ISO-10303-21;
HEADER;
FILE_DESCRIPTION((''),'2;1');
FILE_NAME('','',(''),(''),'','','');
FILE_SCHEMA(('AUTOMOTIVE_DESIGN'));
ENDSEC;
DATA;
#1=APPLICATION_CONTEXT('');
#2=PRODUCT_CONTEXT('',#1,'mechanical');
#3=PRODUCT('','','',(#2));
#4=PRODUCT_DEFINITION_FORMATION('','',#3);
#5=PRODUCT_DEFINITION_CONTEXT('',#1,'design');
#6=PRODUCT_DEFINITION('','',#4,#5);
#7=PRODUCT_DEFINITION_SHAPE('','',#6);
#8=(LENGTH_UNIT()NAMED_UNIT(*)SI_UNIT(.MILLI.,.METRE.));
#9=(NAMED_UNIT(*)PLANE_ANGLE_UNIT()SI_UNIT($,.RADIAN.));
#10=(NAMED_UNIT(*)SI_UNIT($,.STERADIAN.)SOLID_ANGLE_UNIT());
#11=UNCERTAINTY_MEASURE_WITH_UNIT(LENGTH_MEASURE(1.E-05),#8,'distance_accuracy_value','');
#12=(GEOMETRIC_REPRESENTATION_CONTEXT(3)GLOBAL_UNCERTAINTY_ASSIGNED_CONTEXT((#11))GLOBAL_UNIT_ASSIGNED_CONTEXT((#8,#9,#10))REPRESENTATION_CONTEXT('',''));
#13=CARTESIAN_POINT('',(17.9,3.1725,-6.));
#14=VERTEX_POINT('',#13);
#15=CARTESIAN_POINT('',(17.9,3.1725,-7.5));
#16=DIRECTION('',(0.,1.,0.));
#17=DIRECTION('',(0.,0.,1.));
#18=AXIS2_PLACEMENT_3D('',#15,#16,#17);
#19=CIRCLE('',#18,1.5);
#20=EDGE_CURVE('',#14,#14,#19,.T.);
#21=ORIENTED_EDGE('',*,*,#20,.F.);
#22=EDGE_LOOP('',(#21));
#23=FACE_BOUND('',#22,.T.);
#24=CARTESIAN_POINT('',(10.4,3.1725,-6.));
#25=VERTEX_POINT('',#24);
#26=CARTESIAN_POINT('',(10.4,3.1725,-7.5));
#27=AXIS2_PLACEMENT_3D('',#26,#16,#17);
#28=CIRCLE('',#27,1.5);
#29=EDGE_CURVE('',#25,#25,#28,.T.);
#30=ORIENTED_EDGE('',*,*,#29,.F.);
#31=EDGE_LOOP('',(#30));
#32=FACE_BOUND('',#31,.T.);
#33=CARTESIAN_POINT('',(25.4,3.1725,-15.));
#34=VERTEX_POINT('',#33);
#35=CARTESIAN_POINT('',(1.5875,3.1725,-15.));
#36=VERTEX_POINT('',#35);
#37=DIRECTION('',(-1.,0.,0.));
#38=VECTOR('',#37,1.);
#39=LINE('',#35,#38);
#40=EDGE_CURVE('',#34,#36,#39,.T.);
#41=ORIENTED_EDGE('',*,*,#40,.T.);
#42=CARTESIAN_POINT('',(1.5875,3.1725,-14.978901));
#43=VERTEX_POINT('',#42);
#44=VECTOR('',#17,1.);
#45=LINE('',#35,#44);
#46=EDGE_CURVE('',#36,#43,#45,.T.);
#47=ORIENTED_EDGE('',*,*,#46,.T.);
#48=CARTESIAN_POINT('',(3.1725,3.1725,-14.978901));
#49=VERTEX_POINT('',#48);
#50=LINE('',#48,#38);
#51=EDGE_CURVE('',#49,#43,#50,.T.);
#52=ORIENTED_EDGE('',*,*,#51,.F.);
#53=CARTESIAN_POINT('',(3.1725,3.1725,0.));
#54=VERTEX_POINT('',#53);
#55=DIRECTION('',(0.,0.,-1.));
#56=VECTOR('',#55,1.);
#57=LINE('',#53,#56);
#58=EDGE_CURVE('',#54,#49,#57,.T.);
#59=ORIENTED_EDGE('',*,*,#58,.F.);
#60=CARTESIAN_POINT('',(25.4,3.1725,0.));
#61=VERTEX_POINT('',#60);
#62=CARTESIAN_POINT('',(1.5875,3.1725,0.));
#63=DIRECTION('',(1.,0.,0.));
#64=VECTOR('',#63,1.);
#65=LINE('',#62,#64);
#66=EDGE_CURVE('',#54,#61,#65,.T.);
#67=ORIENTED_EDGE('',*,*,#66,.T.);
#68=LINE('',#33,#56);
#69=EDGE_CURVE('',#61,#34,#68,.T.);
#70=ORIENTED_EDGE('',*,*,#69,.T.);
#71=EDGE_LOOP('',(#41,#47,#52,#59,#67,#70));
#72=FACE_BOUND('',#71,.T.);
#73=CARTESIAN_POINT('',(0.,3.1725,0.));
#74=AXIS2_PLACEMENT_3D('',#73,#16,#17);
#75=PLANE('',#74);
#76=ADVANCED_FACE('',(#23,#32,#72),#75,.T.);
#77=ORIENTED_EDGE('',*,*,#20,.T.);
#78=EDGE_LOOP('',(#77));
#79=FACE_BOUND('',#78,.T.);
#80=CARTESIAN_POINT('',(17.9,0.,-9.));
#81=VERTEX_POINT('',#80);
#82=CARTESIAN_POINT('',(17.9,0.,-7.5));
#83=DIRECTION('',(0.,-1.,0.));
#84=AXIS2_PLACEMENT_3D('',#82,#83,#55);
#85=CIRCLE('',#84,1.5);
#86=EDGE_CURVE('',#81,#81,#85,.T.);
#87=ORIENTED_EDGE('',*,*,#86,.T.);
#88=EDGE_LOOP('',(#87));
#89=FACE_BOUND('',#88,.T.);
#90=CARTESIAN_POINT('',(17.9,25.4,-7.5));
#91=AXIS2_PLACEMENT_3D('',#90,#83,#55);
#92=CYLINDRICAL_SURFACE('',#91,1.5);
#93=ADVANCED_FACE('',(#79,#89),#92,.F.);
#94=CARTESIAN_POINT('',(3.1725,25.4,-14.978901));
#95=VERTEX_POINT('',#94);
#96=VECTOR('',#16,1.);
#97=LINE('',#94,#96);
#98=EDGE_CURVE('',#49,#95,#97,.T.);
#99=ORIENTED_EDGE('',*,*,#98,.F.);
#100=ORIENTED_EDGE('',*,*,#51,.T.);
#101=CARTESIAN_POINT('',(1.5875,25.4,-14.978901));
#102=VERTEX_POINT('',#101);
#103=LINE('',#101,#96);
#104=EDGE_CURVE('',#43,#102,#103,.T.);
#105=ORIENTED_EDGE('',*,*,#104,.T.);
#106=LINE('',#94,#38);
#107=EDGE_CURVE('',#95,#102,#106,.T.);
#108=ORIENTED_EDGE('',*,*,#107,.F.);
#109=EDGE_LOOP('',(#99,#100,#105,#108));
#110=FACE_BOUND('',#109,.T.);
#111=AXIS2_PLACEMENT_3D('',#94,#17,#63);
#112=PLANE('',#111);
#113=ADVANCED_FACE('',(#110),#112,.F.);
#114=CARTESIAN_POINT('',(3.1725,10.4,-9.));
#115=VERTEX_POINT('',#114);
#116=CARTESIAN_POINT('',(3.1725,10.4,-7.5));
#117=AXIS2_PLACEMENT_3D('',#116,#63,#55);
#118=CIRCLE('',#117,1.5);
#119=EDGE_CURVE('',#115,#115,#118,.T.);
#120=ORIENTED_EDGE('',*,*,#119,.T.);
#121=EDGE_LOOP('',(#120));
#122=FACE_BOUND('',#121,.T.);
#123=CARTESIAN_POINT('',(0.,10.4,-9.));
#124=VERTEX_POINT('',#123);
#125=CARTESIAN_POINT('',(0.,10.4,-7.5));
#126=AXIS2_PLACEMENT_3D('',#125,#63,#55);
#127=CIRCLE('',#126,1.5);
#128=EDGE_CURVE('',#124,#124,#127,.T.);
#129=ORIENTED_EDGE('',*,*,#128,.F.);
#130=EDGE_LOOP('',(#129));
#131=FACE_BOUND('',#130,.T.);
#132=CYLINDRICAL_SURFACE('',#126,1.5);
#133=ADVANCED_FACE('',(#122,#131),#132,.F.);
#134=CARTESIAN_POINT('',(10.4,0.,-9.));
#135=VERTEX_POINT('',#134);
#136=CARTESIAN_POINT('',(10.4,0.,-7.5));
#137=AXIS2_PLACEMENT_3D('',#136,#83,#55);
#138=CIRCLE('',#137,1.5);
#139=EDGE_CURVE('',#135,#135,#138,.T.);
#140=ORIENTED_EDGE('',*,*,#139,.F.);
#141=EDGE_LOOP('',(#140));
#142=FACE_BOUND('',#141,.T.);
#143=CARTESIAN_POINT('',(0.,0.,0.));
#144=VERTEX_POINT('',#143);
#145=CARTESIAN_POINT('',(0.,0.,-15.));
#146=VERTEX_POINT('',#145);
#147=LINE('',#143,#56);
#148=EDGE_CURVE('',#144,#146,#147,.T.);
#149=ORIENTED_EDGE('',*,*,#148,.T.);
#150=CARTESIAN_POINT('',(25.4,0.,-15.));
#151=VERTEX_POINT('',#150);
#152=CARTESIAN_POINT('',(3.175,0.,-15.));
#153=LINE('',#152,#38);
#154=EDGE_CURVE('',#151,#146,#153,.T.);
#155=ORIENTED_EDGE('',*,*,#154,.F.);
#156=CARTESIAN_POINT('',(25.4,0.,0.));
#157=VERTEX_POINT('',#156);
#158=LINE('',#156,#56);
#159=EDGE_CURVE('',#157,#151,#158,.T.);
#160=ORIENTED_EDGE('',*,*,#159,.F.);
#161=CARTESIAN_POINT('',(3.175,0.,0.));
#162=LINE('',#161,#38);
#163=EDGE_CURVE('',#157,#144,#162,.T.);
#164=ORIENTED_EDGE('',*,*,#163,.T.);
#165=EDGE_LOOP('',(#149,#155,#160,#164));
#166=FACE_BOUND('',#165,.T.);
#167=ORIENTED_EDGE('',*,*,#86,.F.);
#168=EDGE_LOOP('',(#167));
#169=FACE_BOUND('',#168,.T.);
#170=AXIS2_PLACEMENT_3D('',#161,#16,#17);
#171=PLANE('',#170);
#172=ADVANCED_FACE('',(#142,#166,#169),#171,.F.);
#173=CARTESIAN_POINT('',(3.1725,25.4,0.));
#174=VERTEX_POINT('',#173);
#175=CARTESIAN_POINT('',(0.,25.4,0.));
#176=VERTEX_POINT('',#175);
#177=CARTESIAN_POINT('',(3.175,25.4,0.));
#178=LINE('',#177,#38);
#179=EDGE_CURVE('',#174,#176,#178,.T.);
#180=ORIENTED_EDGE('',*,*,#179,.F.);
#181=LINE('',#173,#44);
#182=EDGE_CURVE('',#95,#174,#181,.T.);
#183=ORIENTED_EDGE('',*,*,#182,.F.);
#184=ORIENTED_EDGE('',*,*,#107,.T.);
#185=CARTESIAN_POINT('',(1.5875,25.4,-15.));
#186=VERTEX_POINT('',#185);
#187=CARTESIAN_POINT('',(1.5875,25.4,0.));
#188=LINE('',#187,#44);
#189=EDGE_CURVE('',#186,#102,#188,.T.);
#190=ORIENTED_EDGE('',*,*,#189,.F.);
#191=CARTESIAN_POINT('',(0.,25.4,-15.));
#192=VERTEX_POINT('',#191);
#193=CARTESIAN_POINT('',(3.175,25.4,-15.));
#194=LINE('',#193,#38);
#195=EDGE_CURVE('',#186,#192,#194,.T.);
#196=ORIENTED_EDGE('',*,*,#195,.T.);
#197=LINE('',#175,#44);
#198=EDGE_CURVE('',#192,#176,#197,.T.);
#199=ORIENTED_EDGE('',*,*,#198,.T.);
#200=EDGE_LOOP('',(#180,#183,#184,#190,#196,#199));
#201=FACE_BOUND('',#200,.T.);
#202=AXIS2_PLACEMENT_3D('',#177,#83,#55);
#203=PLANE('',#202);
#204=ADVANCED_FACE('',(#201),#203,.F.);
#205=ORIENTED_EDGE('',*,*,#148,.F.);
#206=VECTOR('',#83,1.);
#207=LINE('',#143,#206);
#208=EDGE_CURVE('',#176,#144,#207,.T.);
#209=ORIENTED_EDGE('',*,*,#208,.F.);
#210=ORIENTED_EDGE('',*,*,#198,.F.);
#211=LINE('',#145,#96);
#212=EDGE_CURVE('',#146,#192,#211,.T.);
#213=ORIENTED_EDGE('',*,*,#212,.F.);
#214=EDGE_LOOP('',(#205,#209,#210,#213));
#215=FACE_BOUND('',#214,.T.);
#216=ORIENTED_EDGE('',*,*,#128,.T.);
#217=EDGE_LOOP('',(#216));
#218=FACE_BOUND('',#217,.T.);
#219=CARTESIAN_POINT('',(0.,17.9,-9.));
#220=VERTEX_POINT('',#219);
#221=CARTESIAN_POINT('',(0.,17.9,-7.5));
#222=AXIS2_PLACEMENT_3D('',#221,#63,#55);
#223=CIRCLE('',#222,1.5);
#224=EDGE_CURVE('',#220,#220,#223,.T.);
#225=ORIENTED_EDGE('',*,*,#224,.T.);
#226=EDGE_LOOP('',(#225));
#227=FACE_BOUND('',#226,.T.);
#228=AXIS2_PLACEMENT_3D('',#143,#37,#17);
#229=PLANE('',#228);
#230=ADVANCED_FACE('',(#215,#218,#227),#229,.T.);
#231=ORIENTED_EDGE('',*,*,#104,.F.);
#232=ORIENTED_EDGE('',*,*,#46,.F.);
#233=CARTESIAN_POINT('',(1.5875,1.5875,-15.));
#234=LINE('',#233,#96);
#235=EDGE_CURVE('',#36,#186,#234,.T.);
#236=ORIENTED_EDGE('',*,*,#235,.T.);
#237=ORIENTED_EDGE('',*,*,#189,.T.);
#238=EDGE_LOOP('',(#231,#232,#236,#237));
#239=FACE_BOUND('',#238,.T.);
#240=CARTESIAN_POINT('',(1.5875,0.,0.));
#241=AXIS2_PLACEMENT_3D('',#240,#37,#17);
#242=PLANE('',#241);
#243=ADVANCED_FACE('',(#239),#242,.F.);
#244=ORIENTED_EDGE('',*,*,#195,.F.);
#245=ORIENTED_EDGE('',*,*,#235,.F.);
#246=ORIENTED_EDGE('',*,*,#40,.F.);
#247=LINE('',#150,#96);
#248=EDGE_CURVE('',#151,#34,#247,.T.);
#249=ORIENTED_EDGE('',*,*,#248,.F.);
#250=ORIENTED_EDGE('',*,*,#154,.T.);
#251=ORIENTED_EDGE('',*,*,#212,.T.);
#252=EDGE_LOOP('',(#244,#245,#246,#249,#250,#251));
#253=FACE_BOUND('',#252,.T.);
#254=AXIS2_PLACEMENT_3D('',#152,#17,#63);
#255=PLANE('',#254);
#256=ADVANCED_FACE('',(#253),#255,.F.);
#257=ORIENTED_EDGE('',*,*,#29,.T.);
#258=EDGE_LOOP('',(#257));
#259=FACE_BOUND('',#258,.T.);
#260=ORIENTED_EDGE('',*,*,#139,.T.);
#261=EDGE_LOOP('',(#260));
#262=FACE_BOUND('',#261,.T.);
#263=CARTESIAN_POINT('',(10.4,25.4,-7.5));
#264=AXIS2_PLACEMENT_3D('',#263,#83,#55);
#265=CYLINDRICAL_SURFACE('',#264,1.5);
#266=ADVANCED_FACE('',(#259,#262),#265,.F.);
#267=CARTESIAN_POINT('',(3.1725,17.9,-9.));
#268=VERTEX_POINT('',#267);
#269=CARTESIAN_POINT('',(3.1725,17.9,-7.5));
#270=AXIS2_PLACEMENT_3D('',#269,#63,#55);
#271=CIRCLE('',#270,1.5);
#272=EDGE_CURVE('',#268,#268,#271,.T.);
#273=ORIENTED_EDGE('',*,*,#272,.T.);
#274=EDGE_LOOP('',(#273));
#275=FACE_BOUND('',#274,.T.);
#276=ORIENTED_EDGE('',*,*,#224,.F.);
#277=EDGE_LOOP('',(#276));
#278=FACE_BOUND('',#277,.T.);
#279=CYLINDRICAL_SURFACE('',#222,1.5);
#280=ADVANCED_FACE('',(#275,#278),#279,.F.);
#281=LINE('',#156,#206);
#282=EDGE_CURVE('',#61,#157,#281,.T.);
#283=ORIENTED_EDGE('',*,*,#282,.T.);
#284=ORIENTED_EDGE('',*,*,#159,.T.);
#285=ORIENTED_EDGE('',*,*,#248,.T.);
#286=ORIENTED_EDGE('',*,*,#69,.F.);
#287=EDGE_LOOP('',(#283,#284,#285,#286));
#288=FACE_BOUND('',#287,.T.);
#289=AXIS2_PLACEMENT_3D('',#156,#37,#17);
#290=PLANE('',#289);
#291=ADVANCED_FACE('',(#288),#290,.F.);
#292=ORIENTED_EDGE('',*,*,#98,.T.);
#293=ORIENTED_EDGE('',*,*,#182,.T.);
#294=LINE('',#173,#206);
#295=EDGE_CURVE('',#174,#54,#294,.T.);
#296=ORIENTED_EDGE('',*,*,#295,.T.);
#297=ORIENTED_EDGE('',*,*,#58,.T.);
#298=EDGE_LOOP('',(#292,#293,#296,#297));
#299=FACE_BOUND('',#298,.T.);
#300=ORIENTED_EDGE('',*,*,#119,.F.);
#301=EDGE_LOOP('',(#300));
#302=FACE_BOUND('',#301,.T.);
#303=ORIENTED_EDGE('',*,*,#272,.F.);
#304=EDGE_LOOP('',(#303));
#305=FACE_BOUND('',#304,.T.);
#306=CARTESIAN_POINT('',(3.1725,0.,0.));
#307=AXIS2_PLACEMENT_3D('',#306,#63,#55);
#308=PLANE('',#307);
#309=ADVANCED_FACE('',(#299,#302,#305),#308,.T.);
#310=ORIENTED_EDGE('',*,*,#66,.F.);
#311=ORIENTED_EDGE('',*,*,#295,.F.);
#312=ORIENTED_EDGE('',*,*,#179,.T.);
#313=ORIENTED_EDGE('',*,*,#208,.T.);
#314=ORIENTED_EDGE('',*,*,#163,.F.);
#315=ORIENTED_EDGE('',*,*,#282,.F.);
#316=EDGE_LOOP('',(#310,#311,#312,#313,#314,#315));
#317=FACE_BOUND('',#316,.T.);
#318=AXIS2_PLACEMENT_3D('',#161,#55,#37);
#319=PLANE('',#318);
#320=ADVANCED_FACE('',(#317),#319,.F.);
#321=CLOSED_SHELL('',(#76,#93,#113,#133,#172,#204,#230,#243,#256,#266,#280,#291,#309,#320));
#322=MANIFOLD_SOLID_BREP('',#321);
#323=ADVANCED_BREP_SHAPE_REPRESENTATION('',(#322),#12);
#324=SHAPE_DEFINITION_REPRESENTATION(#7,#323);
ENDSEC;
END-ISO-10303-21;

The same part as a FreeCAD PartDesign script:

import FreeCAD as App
import Part
import Sketcher
Q = App.Units.Quantity


def add_polygon(sketch, points):
    """Adds a closed chain of lines whose ends are joined by coincident constraints."""
    first, n = sketch.GeometryCount, len(points)
    for a, b in zip(points, points[1:] + points[:1]):
        sketch.addGeometry(Part.LineSegment(App.Vector(*a, 0), App.Vector(*b, 0)), False)
    for i in range(n):
        sketch.addConstraint(Sketcher.Constraint("Coincident", first + i, 2, first + (i + 1) % n, 1))

doc = App.newDocument("Part")
body = doc.addObject("PartDesign::Body", "Body")

# Sketch on YZ plane
sketch1 = body.newObject("Sketcher::SketchObject", "Sketch")
sketch1.AttachmentSupport = (doc.getObject("YZ_Plane"), [""])
sketch1.MapMode = "FlatFace"
add_polygon(sketch1, [(25.4, 0), (0, 0), (0, -15), (25.4, -15)])  # lines 0-3
sketch1.addConstraint(Sketcher.Constraint("Horizontal", 0))
sketch1.addConstraint(Sketcher.Constraint("Vertical", 1))
sketch1.addConstraint(Sketcher.Constraint("Horizontal", 2))
sketch1.addConstraint(Sketcher.Constraint("Vertical", 3))
sketch1.addConstraint(Sketcher.Constraint("Coincident", 0, 2, -1, 1))
sketch1.addConstraint(Sketcher.Constraint("DistanceX", 0, 2, 0, 1, Q("1 in")))
sketch1.addConstraint(Sketcher.Constraint("DistanceY", 1, 2, 1, 1, 15.0))
pad1 = body.newObject("PartDesign::Pad", "Pad")
pad1.Profile = sketch1
pad1.Length = Q("0.125 in")

# Sketch on YZ plane
sketch2 = body.newObject("Sketcher::SketchObject", "Sketch001")
sketch2.AttachmentSupport = (doc.getObject("YZ_Plane"), [""])
sketch2.MapMode = "FlatFace"
sketch2.AttachmentOffset = App.Placement(App.Vector(0, 0, 0.125 * 25.4), App.Rotation())
add_polygon(sketch2, [(3.175, 0), (0, 0), (0, -15), (3.175, -15)])  # lines 0-3
sketch2.addConstraint(Sketcher.Constraint("Horizontal", 0))
sketch2.addConstraint(Sketcher.Constraint("Vertical", 1))
sketch2.addConstraint(Sketcher.Constraint("Horizontal", 2))
sketch2.addConstraint(Sketcher.Constraint("Vertical", 3))
sketch2.addConstraint(Sketcher.Constraint("Coincident", 0, 2, -1, 1))
sketch2.addConstraint(Sketcher.Constraint("DistanceX", 0, 2, 0, 1, Q("0.125 in")))
sketch2.addConstraint(Sketcher.Constraint("DistanceY", 1, 2, 1, 1, 15.0))
pad2 = body.newObject("PartDesign::Pad", "Pad001")
pad2.Profile = sketch2
pad2.Length = Q("0.875 in")

# Sketch on YZ plane
sketch3 = body.newObject("Sketcher::SketchObject", "Sketch002")
sketch3.AttachmentSupport = (doc.getObject("YZ_Plane"), [""])
sketch3.MapMode = "FlatFace"
sketch3.AttachmentOffset = App.Placement(App.Vector(0, 0, 0.125 * 25.4), App.Rotation())
sketch3.addGeometry(Part.Circle(App.Vector(17.9, -7.5, 0), App.Vector(0, 0, 1), 1.5), False)
sketch3.addGeometry(Part.Circle(App.Vector(10.4, -7.5, 0), App.Vector(0, 0, 1), 1.5), False)
sketch3.addConstraint(Sketcher.Constraint("Equal", 0, 1))
sketch3.addConstraint(Sketcher.Constraint("Horizontal", 0, 3, 1, 3))
sketch3.addConstraint(Sketcher.Constraint("Diameter", 0, 3.0))
sketch3.addConstraint(Sketcher.Constraint("DistanceX", -1, 1, 0, 3, 17.9))
sketch3.addConstraint(Sketcher.Constraint("DistanceY", 0, 3, -1, 1, 7.5))
sketch3.addConstraint(Sketcher.Constraint("DistanceX", -1, 1, 1, 3, 10.4))
pocket1 = body.newObject("PartDesign::Pocket", "Pocket")
pocket1.Profile = sketch3
pocket1.Type = "ThroughAll"

# Sketch on XZ plane
sketch4 = body.newObject("Sketcher::SketchObject", "Sketch003")
sketch4.AttachmentSupport = (doc.getObject("XZ_Plane"), [""])
sketch4.MapMode = "FlatFace"
sketch4.addGeometry(Part.Circle(App.Vector(10.4, -7.5, 0), App.Vector(0, 0, 1), 1.5), False)
sketch4.addGeometry(Part.Circle(App.Vector(17.9, -7.5, 0), App.Vector(0, 0, 1), 1.5), False)
sketch4.addConstraint(Sketcher.Constraint("Equal", 0, 1))
sketch4.addConstraint(Sketcher.Constraint("Horizontal", 0, 3, 1, 3))
sketch4.addConstraint(Sketcher.Constraint("Diameter", 0, 3.0))
sketch4.addConstraint(Sketcher.Constraint("DistanceX", -1, 1, 0, 3, 10.4))
sketch4.addConstraint(Sketcher.Constraint("DistanceY", 0, 3, -1, 1, 7.5))
sketch4.addConstraint(Sketcher.Constraint("DistanceX", -1, 1, 1, 3, 17.9))
pocket2 = body.newObject("PartDesign::Pocket", "Pocket001")
pocket2.Profile = sketch4
pocket2.Type = "ThroughAll"

# Sketch on XZ plane
sketch5 = body.newObject("Sketcher::SketchObject", "Sketch004")
sketch5.AttachmentSupport = (doc.getObject("XZ_Plane"), [""])
sketch5.MapMode = "FlatFace"
sketch5.AttachmentOffset = App.Placement(App.Vector(0, 0, -0.125 * 25.4), App.Rotation())
add_polygon(sketch5, [(3.175, -15), (3.175, 0), (25.4, 0), (25.4, -15)])  # lines 0-3
sketch5.addConstraint(Sketcher.Constraint("Vertical", 0))
sketch5.addConstraint(Sketcher.Constraint("Horizontal", 1))
sketch5.addConstraint(Sketcher.Constraint("Vertical", 2))
sketch5.addConstraint(Sketcher.Constraint("Horizontal", 3))
sketch5.addConstraint(Sketcher.Constraint("PointOnObject", 0, 2, -1))
sketch5.addConstraint(Sketcher.Constraint("DistanceX", -1, 1, 1, 2, Q("1 in")))
sketch5.addConstraint(Sketcher.Constraint("DistanceX", 1, 1, 1, 2, Q("0.875 in")))
sketch5.addConstraint(Sketcher.Constraint("DistanceY", 0, 1, 0, 2, 15.0))
pocket3 = body.newObject("PartDesign::Pocket", "Pocket002")
pocket3.Profile = sketch5
pocket3.Length = Q("0.0625 in")
pocket3.Reversed = True

# Sketch on YZ plane
sketch6 = body.newObject("Sketcher::SketchObject", "Sketch005")
sketch6.AttachmentSupport = (doc.getObject("YZ_Plane"), [""])
sketch6.MapMode = "FlatFace"
sketch6.AttachmentOffset = App.Placement(App.Vector(0, 0, 0.0625 * 25.4), App.Rotation())
add_polygon(sketch6, [(25.4, 0), (1.5875, 0), (1.5875, -15), (25.4, -15)])  # lines 0-3
sketch6.addConstraint(Sketcher.Constraint("Horizontal", 0))
sketch6.addConstraint(Sketcher.Constraint("Vertical", 1))
sketch6.addConstraint(Sketcher.Constraint("Horizontal", 2))
sketch6.addConstraint(Sketcher.Constraint("Vertical", 3))
sketch6.addConstraint(Sketcher.Constraint("PointOnObject", 0, 2, -1))
sketch6.addConstraint(Sketcher.Constraint("DistanceX", -1, 1, 2, 2, Q("1 in")))
sketch6.addConstraint(Sketcher.Constraint("DistanceX", 0, 2, 0, 1, Q("0.9375 in")))
sketch6.addConstraint(Sketcher.Constraint("DistanceY", 1, 2, 1, 1, 15.0))
pocket4 = body.newObject("PartDesign::Pocket", "Pocket003")
pocket4.Profile = sketch6
pocket4.Length = Q("0.0625 in")
pocket4.Reversed = True

# Sketch on XZ plane
sketch7 = body.newObject("Sketcher::SketchObject", "Sketch006")
sketch7.AttachmentSupport = (doc.getObject("XZ_Plane"), [""])
sketch7.MapMode = "FlatFace"
sketch7.AttachmentOffset = App.Placement(App.Vector(0, 0, -0.0625 * 25.4), App.Rotation())
add_polygon(sketch7, [(1.5875, -15), (1.5875, 0), (25.4, 0), (25.4, -15)])  # lines 0-3
sketch7.addGeometry(Part.Circle(App.Vector(10.4, -7.5, 0), App.Vector(0, 0, 1), 1.5), False)  # 4
sketch7.addGeometry(Part.Circle(App.Vector(17.9, -7.5, 0), App.Vector(0, 0, 1), 1.5), False)  # 5
sketch7.addConstraint(Sketcher.Constraint("Vertical", 0))
sketch7.addConstraint(Sketcher.Constraint("Horizontal", 1))
sketch7.addConstraint(Sketcher.Constraint("Vertical", 2))
sketch7.addConstraint(Sketcher.Constraint("Horizontal", 3))
sketch7.addConstraint(Sketcher.Constraint("Equal", 4, 5))
sketch7.addConstraint(Sketcher.Constraint("PointOnObject", 0, 2, -1))
sketch7.addConstraint(Sketcher.Constraint("Horizontal", 4, 3, 5, 3))
sketch7.addConstraint(Sketcher.Constraint("DistanceX", -1, 1, 1, 2, Q("1 in")))
sketch7.addConstraint(Sketcher.Constraint("Diameter", 4, 3.0))
sketch7.addConstraint(Sketcher.Constraint("DistanceX", 1, 1, 1, 2, Q("0.9375 in")))
sketch7.addConstraint(Sketcher.Constraint("DistanceY", 0, 1, 0, 2, 15.0))
sketch7.addConstraint(Sketcher.Constraint("DistanceX", -1, 1, 4, 3, 10.4))
sketch7.addConstraint(Sketcher.Constraint("DistanceY", 4, 3, -1, 1, 7.5))
sketch7.addConstraint(Sketcher.Constraint("DistanceX", -1, 1, 5, 3, 17.9))
pad3 = body.newObject("PartDesign::Pad", "Pad002")
pad3.Profile = sketch7
pad3.Length = 1.585
pad3.Reversed = True

# Sketch on YZ plane
sketch8 = body.newObject("Sketcher::SketchObject", "Sketch007")
sketch8.AttachmentSupport = (doc.getObject("YZ_Plane"), [""])
sketch8.MapMode = "FlatFace"
sketch8.AttachmentOffset = App.Placement(App.Vector(0, 0, 3.1725), App.Rotation())
add_polygon(sketch8, [(25.4, 0), (3.1725, 0), (3.1725, -14.978901), (25.4, -14.978901)])  # lines 0-3
sketch8.addGeometry(Part.Circle(App.Vector(10.4, -7.5, 0), App.Vector(0, 0, 1), 1.5), False)  # 4
sketch8.addGeometry(Part.Circle(App.Vector(17.9, -7.5, 0), App.Vector(0, 0, 1), 1.5), False)  # 5
sketch8.addConstraint(Sketcher.Constraint("Horizontal", 0))
sketch8.addConstraint(Sketcher.Constraint("Vertical", 1))
sketch8.addConstraint(Sketcher.Constraint("Horizontal", 2))
sketch8.addConstraint(Sketcher.Constraint("Vertical", 3))
sketch8.addConstraint(Sketcher.Constraint("Equal", 4, 5))
sketch8.addConstraint(Sketcher.Constraint("PointOnObject", 0, 2, -1))
sketch8.addConstraint(Sketcher.Constraint("Horizontal", 4, 3, 5, 3))
sketch8.addConstraint(Sketcher.Constraint("DistanceX", -1, 1, 2, 2, Q("1 in")))
sketch8.addConstraint(Sketcher.Constraint("Diameter", 4, 3.0))
sketch8.addConstraint(Sketcher.Constraint("DistanceX", 0, 2, 0, 1, 22.2275))
sketch8.addConstraint(Sketcher.Constraint("DistanceY", 1, 2, 1, 1, 14.978901))
sketch8.addConstraint(Sketcher.Constraint("DistanceX", -1, 1, 4, 3, 10.4))
sketch8.addConstraint(Sketcher.Constraint("DistanceY", 4, 3, -1, 1, 7.5))
sketch8.addConstraint(Sketcher.Constraint("DistanceX", -1, 1, 5, 3, 17.9))
pad4 = body.newObject("PartDesign::Pad", "Pad003")
pad4.Profile = sketch8
pad4.Length = 1.585
pad4.Reversed = True

doc.recompute()
